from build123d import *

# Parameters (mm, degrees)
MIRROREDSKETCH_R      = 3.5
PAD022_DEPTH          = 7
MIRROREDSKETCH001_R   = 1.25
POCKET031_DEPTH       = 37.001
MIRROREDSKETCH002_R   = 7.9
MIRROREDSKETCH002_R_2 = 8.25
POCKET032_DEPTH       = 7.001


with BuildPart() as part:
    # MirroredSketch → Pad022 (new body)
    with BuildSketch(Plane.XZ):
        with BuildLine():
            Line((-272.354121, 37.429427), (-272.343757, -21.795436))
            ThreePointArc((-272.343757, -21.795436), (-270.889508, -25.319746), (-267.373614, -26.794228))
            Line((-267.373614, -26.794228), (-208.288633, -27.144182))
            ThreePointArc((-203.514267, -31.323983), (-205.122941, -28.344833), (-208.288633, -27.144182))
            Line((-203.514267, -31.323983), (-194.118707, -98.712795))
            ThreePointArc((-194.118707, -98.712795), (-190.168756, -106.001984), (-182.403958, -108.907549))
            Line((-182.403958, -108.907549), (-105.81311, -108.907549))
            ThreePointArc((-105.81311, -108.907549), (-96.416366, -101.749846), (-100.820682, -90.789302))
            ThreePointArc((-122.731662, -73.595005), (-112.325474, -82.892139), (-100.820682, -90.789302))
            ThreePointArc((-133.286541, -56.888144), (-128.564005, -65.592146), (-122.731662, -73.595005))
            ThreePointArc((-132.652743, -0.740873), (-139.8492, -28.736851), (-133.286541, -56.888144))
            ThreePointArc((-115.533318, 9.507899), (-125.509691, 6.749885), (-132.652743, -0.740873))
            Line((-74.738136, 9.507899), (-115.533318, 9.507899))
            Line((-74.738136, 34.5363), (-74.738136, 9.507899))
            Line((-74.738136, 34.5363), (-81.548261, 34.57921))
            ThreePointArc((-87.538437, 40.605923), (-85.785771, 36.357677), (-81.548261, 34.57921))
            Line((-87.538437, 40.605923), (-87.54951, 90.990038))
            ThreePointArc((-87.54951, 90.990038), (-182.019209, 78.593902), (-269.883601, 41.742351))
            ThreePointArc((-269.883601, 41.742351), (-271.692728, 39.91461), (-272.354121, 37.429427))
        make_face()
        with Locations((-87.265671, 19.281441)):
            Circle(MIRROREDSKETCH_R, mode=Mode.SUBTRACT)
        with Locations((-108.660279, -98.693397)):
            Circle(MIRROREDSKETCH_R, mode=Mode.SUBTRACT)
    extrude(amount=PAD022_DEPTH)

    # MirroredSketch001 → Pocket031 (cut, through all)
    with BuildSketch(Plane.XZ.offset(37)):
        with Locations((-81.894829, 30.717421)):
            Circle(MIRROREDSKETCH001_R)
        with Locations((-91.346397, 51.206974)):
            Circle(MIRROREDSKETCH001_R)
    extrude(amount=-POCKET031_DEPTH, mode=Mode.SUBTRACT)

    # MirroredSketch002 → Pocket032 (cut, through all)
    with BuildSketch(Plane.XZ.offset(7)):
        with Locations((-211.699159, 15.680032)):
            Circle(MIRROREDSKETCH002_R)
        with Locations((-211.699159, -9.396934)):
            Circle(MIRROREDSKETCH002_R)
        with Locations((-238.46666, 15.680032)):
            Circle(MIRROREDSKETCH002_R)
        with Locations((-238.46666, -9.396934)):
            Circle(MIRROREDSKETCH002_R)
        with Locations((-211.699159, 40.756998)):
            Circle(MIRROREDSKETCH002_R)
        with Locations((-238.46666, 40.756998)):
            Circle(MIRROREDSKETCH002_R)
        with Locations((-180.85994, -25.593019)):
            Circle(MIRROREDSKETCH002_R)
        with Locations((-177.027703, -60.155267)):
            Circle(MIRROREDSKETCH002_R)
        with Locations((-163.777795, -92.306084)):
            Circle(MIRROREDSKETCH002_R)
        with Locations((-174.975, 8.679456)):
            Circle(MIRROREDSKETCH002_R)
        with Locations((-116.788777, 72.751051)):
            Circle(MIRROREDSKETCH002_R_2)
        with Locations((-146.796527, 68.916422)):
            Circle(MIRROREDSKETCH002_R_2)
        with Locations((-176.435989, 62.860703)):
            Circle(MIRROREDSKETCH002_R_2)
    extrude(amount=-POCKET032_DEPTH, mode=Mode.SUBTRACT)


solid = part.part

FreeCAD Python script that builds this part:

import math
import FreeCAD as App
import Part
import Sketcher
Q = App.Units.Quantity

doc = App.newDocument("Part")
params = doc.addObject("Spreadsheet::Sheet", "Params")
for row, (alias, value) in enumerate([
    ("sketch1_diameter", "7 mm"),
    ("pad1_length", "7 mm"),
    ("sketch2_diameter", "2.5 mm"),
    ("sketch3_diameter", "15.8 mm"),
    ("sketch3_diameter2", "16.5 mm"),
], start=1):
    params.set(f"A{row}", alias)
    params.set(f"B{row}", "=" + value)
    params.setAlias(f"B{row}", alias)

body = doc.addObject("PartDesign::Body", "Body")

# Sketch on XZ plane
sketch1 = body.newObject("Sketcher::SketchObject", "Sketch")
sketch1.AttachmentSupport = (doc.getObject("XZ_Plane"), [""])
sketch1.MapMode = "FlatFace"
sketch1.addGeometry([
    Part.LineSegment(App.Vector(-272.4, 37.4, 0), App.Vector(-272.3, -21.8, 0)),  # 0
    Part.ArcOfCircle(Part.Circle(App.Vector(-267.3, -21.8, 0), App.Vector(0, 0, 1), 5), math.radians(-180), math.radians(-90)),  # 1
    Part.LineSegment(App.Vector(-267.4, -26.8, 0), App.Vector(-208.3, -27.1, 0)),  # 2
    Part.ArcOfCircle(Part.Circle(App.Vector(-208.3, -32, 0), App.Vector(0, 0, 1), 4.8), math.radians(8), math.radians(90)),  # 3
    Part.LineSegment(App.Vector(-203.5, -31.3, 0), App.Vector(-194.1, -98.7, 0)),  # 4
    Part.ArcOfCircle(Part.Circle(App.Vector(-182.4, -97.1, 0), App.Vector(0, 0, 1), 11.8), math.radians(-172), math.radians(-90)),  # 5
    Part.LineSegment(App.Vector(-182.4, -108.9, 0), App.Vector(-105.8, -108.9, 0)),  # 6
    Part.ArcOfCircle(Part.Circle(App.Vector(-105.8, -99.2, 0), App.Vector(0, 0, 1), 9.7), math.radians(-90), math.radians(59)),  # 7
    Part.ArcOfCircle(Part.Circle(App.Vector(-44.8, 3.2, 0), App.Vector(0, 0, 1), 109.4), math.radians(-135.43), math.radians(-120.81)),  # 8
    Part.ArcOfCircle(Part.Circle(App.Vector(-65.4, -25.7, 0), App.Vector(0, 0, 1), 74.7), math.radians(-155.32), math.radians(-140.12)),  # 9
    Part.ArcOfCircle(Part.Circle(App.Vector(-79.1, -29.4, 0), App.Vector(0, 0, 1), 60.7), math.radians(152), math.radians(207)),  # 10
    Part.ArcOfCircle(Part.Circle(App.Vector(-115.5, -9.9, 0), App.Vector(0, 0, 1), 19.4), math.radians(90), math.radians(152)),  # 11
    Part.LineSegment(App.Vector(-115.5, 9.5, 0), App.Vector(-74.7, 9.5, 0)),  # 12
    Part.LineSegment(App.Vector(-74.7, 9.5, 0), App.Vector(-74.7, 34.5, 0)),  # 13
    Part.LineSegment(App.Vector(-74.7, 34.5, 0), App.Vector(-81.5, 34.6, 0)),  # 14
    Part.ArcOfCircle(Part.Circle(App.Vector(-81.5, 40.6, 0), App.Vector(0, 0, 1), 6), math.radians(-180), math.radians(-90)),  # 15
    Part.LineSegment(App.Vector(-87.5, 40.6, 0), App.Vector(-87.5, 91, 0)),  # 16
    Part.ArcOfCircle(Part.Circle(App.Vector(-88.6, -267.4, 0), App.Vector(0, 0, 1), 358.4), math.radians(90), math.radians(120)),  # 17
    Part.ArcOfCircle(Part.Circle(App.Vector(-267.4, 37.4, 0), App.Vector(0, 0, 1), 5), math.radians(120), math.radians(180)),  # 18
    Part.Circle(App.Vector(-108.7, -98.7, 0), App.Vector(0, 0, 1), 3.5),  # 19
    Part.Circle(App.Vector(-87.3, 19.3, 0), App.Vector(0, 0, 1), 3.5),  # 20
], False)
sketch1.addConstraint([
    Sketcher.Constraint("Tangent", 0, 2, 1, 1),
    Sketcher.Constraint("Tangent", 1, 2, 2, 1),
    Sketcher.Constraint("Tangent", 2, 2, 3, 2),
    Sketcher.Constraint("Tangent", 3, 1, 4, 1),
    Sketcher.Constraint("Tangent", 4, 2, 5, 1),
    Sketcher.Constraint("Tangent", 5, 2, 6, 1),
    Sketcher.Constraint("Tangent", 6, 2, 7, 1),
    Sketcher.Constraint("Tangent", 7, 2, 8, 2),
    Sketcher.Constraint("Coincident", 8, 1, 9, 2),
    Sketcher.Constraint("Coincident", 9, 1, 10, 2),
    Sketcher.Constraint("Tangent", 10, 1, 11, 2),
    Sketcher.Constraint("Tangent", 11, 1, 12, 1),
    Sketcher.Constraint("Coincident", 12, 2, 13, 1),
    Sketcher.Constraint("Coincident", 13, 2, 14, 1),
    Sketcher.Constraint("Tangent", 14, 2, 15, 2),
    Sketcher.Constraint("Tangent", 15, 1, 16, 1),
    Sketcher.Constraint("Coincident", 16, 2, 17, 1),
    Sketcher.Constraint("Coincident", 17, 2, 18, 1),
    Sketcher.Constraint("Coincident", 18, 2, 0, 1),
    Sketcher.Constraint("Horizontal", 6),
    Sketcher.Constraint("Horizontal", 12),
    Sketcher.Constraint("Vertical", 13),
    Sketcher.Constraint("Equal", 19, 20),
    Sketcher.Constraint("Diameter", 19, Q("7 mm")),
    Sketcher.Constraint("Radius", 8, Q("109.423089 mm")),
    Sketcher.Constraint("Radius", 15, Q("6.028158 mm")),
    Sketcher.Constraint("DistanceY", 13, 1, 13, 2, Q("25.028401 mm")),
    Sketcher.Constraint("DistanceX", 1, 3, -1, 1, Q("267.344001 mm")),
    Sketcher.Constraint("Radius", 1, Q("4.999757 mm")),
    Sketcher.Constraint("Radius", 3, Q("4.849547 mm")),
    Sketcher.Constraint("Radius", 5, Q("11.828062 mm")),
    Sketcher.Constraint("Radius", 7, Q("9.746948 mm")),
    Sketcher.Constraint("Radius", 9, Q("74.700522 mm")),
    Sketcher.Constraint("Radius", 10, Q("60.724145 mm")),
    Sketcher.Constraint("Radius", 11, Q("19.422425 mm")),
    Sketcher.Constraint("Radius", 17, Q("358.371976 mm")),
    Sketcher.Constraint("Radius", 18, Q("5.000075 mm")),
    Sketcher.Constraint("DistanceX", 12, 1, 12, 2, Q("40.795182 mm")),
    Sketcher.Constraint("DistanceY", 7, 3, -1, 1, Q("99.160601 mm")),
    Sketcher.Constraint("DistanceY", -1, 1, 11, 1, Q("9.507899 mm")),
    Sketcher.Constraint("DistanceX", 17, 2, -1, 1, Q("269.883601 mm")),
    Sketcher.Constraint("DistanceX", 3, 3, 5, 3, Q("25.913398 mm")),
    Sketcher.Constraint("DistanceX", 0, 2, 3, 3, Q("64.026401 mm")),
    Sketcher.Constraint("DistanceY", 7, 3, 7, 2, Q("8.371299 mm")),
    Sketcher.Constraint("DistanceX", 15, 1, 13, 2, Q("12.800301 mm")),
    Sketcher.Constraint("Distance", 4, Q("68.040639 mm")),
    Sketcher.Constraint("Distance", 14, Q("6.81026 mm")),
    Sketcher.Constraint("DistanceX", 6, 1, 6, 2, Q("76.590848 mm")),
    Sketcher.Constraint("DistanceY", 1, 3, -1, 1, Q("21.794559 mm")),
    Sketcher.Constraint("DistanceY", 10, 3, -1, 1, Q("29.42227 mm")),
    Sketcher.Constraint("DistanceX", 11, 3, -1, 1, Q("115.533319 mm")),
    Sketcher.Constraint("DistanceX", 19, 3, -1, 1, Q("108.660279 mm")),
    Sketcher.Constraint("DistanceX", 20, 3, -1, 1, Q("87.265671 mm")),
    Sketcher.Constraint("DistanceY", -1, 1, 20, 3, Q("19.281441 mm")),
    Sketcher.Constraint("DistanceX", 8, 1, -1, 1, Q("122.731662 mm")),
    Sketcher.Constraint("DistanceX", 9, 1, -1, 1, Q("133.286541 mm")),
    Sketcher.Constraint("DistanceX", 16, 2, -1, 1, Q("87.54951 mm")),
    Sketcher.Constraint("DistanceY", -1, 1, 16, 2, Q("90.990038 mm")),
    Sketcher.Constraint("DistanceY", -1, 1, 17, 2, Q("41.742351 mm")),
    Sketcher.Constraint("DistanceX", 18, 2, -1, 1, Q("272.354121 mm")),
    Sketcher.Constraint("DistanceY", 19, 3, 5, 3, Q("1.61391 mm")),
    Sketcher.Constraint("Distance", 0, Q("59.224864 mm")),
])
sketch1.setExpression("Constraints[23]", "Params.sketch1_diameter")
pad1 = body.newObject("PartDesign::Pad", "Pad")
pad1.Profile = sketch1
pad1.setExpression("Length", "Params.pad1_length")

# Sketch on XZ plane
sketch2 = body.newObject("Sketcher::SketchObject", "Sketch001")
sketch2.AttachmentSupport = (doc.getObject("XZ_Plane"), [""])
sketch2.MapMode = "FlatFace"
sketch2.AttachmentOffset = App.Placement(App.Vector(0, 0, 37), App.Rotation())
sketch2.addGeometry([
    Part.Circle(App.Vector(-81.9, 30.7, 0), App.Vector(0, 0, 1), 1.2),
    Part.Circle(App.Vector(-91.3, 51.2, 0), App.Vector(0, 0, 1), 1.2),
], False)
sketch2.addConstraint([
    Sketcher.Constraint("Equal", 0, 1),
    Sketcher.Constraint("Diameter", 0, Q("2.5 mm")),
    Sketcher.Constraint("DistanceX", 0, 3, -1, 1, Q("81.894829 mm")),
    Sketcher.Constraint("DistanceY", -1, 1, 0, 3, Q("30.717421 mm")),
    Sketcher.Constraint("DistanceX", 1, 3, -1, 1, Q("91.346397 mm")),
    Sketcher.Constraint("DistanceY", -1, 1, 1, 3, Q("51.206974 mm")),
])
sketch2.setExpression("Constraints[1]", "Params.sketch2_diameter")
pocket1 = body.newObject("PartDesign::Pocket", "Pocket")
pocket1.Profile = sketch2
pocket1.Type = "ThroughAll"

# Sketch on XZ plane
sketch3 = body.newObject("Sketcher::SketchObject", "Sketch002")
sketch3.AttachmentSupport = (doc.getObject("XZ_Plane"), [""])
sketch3.MapMode = "FlatFace"
sketch3.AttachmentOffset = App.Placement(App.Vector(0, 0, 7), App.Rotation())
sketch3.addGeometry([
    Part.Circle(App.Vector(-212, 16, 0), App.Vector(0, 0, 1), 8),  # 0
    Part.Circle(App.Vector(-212, -9, 0), App.Vector(0, 0, 1), 8),  # 1
    Part.Circle(App.Vector(-238, 16, 0), App.Vector(0, 0, 1), 8),  # 2
    Part.Circle(App.Vector(-238, -9, 0), App.Vector(0, 0, 1), 8),  # 3
    Part.Circle(App.Vector(-212, 41, 0), App.Vector(0, 0, 1), 8),  # 4
    Part.Circle(App.Vector(-238, 41, 0), App.Vector(0, 0, 1), 8),  # 5
    Part.Circle(App.Vector(-181, -26, 0), App.Vector(0, 0, 1), 8),  # 6
    Part.Circle(App.Vector(-177, -60, 0), App.Vector(0, 0, 1), 8),  # 7
    Part.Circle(App.Vector(-164, -92, 0), App.Vector(0, 0, 1), 8),  # 8
    Part.Circle(App.Vector(-175, 9, 0), App.Vector(0, 0, 1), 8),  # 9
    Part.Circle(App.Vector(-117, 73, 0), App.Vector(0, 0, 1), 8),  # 10
    Part.Circle(App.Vector(-147, 69, 0), App.Vector(0, 0, 1), 8),  # 11
    Part.Circle(App.Vector(-176, 63, 0), App.Vector(0, 0, 1), 8),  # 12
], False)
sketch3.addConstraint([
    Sketcher.Constraint("Equal", 0, 1),
    Sketcher.Constraint("Equal", 1, 2),
    Sketcher.Constraint("Equal", 2, 3),
    Sketcher.Constraint("Equal", 3, 4),
    Sketcher.Constraint("Equal", 4, 5),
    Sketcher.Constraint("Equal", 5, 6),
    Sketcher.Constraint("Equal", 6, 7),
    Sketcher.Constraint("Equal", 7, 8),
    Sketcher.Constraint("Equal", 8, 9),
    Sketcher.Constraint("Equal", 10, 11),
    Sketcher.Constraint("Equal", 11, 12),
    Sketcher.Constraint("Horizontal", 0, 3, 2, 3),
    Sketcher.Constraint("Horizontal", 1, 3, 3, 3),
    Sketcher.Constraint("Horizontal", 4, 3, 5, 3),
    Sketcher.Constraint("Vertical", 0, 3, 1, 3),
    Sketcher.Constraint("Vertical", 2, 3, 3, 3),
    Sketcher.Constraint("Vertical", 1, 3, 4, 3),
    Sketcher.Constraint("Vertical", 3, 3, 5, 3),
    Sketcher.Constraint("Diameter", 0, Q("15.8 mm")),
    Sketcher.Constraint("Diameter", 10, Q("16.5 mm")),
    Sketcher.Constraint("DistanceY", -1, 1, 4, 3, Q("40.756998 mm")),
    Sketcher.Constraint("DistanceX", 9, 3, -1, 1, Q("174.975 mm")),
    Sketcher.Constraint("DistanceX", 2, 3, 0, 3, Q("26.767501 mm")),
    Sketcher.Constraint("DistanceY", 7, 3, 0, 3, Q("75.835299 mm")),
    Sketcher.Constraint("DistanceX", 0, 3, -1, 1, Q("211.699159 mm")),
    Sketcher.Constraint("DistanceX", 6, 3, -1, 1, Q("180.85994 mm")),
    Sketcher.Constraint("DistanceY", 6, 3, -1, 1, Q("25.593019 mm")),
    Sketcher.Constraint("DistanceY", -1, 1, 10, 3, Q("72.751051 mm")),
    Sketcher.Constraint("DistanceY", -1, 1, 11, 3, Q("68.916422 mm")),
    Sketcher.Constraint("DistanceX", 12, 3, -1, 1, Q("176.435989 mm")),
    Sketcher.Constraint("DistanceY", 6, 3, 0, 3, Q("41.273051 mm")),
    Sketcher.Constraint("DistanceX", 7, 3, 8, 3, Q("13.249908 mm")),
    Sketcher.Constraint("DistanceY", 8, 3, 1, 3, Q("82.90915 mm")),
    Sketcher.Constraint("DistanceY", 1, 3, 9, 3, Q("18.07639 mm")),
    Sketcher.Constraint("DistanceX", 11, 3, 10, 3, Q("30.00775 mm")),
    Sketcher.Constraint("DistanceY", 12, 3, 11, 3, Q("6.055719 mm")),
    Sketcher.Constraint("DistanceY", 1, 3, -1, 1, Q("9.396934 mm")),
    Sketcher.Constraint("DistanceX", 7, 3, -1, 1, Q("177.027703 mm")),
    Sketcher.Constraint("DistanceX", 10, 3, -1, 1, Q("116.788777 mm")),
])
sketch3.setExpression("Constraints[18]", "Params.sketch3_diameter")
sketch3.setExpression("Constraints[19]", "Params.sketch3_diameter2")
pocket2 = body.newObject("PartDesign::Pocket", "Pocket001")
pocket2.Profile = sketch3
pocket2.Type = "ThroughAll"

doc.recompute()
